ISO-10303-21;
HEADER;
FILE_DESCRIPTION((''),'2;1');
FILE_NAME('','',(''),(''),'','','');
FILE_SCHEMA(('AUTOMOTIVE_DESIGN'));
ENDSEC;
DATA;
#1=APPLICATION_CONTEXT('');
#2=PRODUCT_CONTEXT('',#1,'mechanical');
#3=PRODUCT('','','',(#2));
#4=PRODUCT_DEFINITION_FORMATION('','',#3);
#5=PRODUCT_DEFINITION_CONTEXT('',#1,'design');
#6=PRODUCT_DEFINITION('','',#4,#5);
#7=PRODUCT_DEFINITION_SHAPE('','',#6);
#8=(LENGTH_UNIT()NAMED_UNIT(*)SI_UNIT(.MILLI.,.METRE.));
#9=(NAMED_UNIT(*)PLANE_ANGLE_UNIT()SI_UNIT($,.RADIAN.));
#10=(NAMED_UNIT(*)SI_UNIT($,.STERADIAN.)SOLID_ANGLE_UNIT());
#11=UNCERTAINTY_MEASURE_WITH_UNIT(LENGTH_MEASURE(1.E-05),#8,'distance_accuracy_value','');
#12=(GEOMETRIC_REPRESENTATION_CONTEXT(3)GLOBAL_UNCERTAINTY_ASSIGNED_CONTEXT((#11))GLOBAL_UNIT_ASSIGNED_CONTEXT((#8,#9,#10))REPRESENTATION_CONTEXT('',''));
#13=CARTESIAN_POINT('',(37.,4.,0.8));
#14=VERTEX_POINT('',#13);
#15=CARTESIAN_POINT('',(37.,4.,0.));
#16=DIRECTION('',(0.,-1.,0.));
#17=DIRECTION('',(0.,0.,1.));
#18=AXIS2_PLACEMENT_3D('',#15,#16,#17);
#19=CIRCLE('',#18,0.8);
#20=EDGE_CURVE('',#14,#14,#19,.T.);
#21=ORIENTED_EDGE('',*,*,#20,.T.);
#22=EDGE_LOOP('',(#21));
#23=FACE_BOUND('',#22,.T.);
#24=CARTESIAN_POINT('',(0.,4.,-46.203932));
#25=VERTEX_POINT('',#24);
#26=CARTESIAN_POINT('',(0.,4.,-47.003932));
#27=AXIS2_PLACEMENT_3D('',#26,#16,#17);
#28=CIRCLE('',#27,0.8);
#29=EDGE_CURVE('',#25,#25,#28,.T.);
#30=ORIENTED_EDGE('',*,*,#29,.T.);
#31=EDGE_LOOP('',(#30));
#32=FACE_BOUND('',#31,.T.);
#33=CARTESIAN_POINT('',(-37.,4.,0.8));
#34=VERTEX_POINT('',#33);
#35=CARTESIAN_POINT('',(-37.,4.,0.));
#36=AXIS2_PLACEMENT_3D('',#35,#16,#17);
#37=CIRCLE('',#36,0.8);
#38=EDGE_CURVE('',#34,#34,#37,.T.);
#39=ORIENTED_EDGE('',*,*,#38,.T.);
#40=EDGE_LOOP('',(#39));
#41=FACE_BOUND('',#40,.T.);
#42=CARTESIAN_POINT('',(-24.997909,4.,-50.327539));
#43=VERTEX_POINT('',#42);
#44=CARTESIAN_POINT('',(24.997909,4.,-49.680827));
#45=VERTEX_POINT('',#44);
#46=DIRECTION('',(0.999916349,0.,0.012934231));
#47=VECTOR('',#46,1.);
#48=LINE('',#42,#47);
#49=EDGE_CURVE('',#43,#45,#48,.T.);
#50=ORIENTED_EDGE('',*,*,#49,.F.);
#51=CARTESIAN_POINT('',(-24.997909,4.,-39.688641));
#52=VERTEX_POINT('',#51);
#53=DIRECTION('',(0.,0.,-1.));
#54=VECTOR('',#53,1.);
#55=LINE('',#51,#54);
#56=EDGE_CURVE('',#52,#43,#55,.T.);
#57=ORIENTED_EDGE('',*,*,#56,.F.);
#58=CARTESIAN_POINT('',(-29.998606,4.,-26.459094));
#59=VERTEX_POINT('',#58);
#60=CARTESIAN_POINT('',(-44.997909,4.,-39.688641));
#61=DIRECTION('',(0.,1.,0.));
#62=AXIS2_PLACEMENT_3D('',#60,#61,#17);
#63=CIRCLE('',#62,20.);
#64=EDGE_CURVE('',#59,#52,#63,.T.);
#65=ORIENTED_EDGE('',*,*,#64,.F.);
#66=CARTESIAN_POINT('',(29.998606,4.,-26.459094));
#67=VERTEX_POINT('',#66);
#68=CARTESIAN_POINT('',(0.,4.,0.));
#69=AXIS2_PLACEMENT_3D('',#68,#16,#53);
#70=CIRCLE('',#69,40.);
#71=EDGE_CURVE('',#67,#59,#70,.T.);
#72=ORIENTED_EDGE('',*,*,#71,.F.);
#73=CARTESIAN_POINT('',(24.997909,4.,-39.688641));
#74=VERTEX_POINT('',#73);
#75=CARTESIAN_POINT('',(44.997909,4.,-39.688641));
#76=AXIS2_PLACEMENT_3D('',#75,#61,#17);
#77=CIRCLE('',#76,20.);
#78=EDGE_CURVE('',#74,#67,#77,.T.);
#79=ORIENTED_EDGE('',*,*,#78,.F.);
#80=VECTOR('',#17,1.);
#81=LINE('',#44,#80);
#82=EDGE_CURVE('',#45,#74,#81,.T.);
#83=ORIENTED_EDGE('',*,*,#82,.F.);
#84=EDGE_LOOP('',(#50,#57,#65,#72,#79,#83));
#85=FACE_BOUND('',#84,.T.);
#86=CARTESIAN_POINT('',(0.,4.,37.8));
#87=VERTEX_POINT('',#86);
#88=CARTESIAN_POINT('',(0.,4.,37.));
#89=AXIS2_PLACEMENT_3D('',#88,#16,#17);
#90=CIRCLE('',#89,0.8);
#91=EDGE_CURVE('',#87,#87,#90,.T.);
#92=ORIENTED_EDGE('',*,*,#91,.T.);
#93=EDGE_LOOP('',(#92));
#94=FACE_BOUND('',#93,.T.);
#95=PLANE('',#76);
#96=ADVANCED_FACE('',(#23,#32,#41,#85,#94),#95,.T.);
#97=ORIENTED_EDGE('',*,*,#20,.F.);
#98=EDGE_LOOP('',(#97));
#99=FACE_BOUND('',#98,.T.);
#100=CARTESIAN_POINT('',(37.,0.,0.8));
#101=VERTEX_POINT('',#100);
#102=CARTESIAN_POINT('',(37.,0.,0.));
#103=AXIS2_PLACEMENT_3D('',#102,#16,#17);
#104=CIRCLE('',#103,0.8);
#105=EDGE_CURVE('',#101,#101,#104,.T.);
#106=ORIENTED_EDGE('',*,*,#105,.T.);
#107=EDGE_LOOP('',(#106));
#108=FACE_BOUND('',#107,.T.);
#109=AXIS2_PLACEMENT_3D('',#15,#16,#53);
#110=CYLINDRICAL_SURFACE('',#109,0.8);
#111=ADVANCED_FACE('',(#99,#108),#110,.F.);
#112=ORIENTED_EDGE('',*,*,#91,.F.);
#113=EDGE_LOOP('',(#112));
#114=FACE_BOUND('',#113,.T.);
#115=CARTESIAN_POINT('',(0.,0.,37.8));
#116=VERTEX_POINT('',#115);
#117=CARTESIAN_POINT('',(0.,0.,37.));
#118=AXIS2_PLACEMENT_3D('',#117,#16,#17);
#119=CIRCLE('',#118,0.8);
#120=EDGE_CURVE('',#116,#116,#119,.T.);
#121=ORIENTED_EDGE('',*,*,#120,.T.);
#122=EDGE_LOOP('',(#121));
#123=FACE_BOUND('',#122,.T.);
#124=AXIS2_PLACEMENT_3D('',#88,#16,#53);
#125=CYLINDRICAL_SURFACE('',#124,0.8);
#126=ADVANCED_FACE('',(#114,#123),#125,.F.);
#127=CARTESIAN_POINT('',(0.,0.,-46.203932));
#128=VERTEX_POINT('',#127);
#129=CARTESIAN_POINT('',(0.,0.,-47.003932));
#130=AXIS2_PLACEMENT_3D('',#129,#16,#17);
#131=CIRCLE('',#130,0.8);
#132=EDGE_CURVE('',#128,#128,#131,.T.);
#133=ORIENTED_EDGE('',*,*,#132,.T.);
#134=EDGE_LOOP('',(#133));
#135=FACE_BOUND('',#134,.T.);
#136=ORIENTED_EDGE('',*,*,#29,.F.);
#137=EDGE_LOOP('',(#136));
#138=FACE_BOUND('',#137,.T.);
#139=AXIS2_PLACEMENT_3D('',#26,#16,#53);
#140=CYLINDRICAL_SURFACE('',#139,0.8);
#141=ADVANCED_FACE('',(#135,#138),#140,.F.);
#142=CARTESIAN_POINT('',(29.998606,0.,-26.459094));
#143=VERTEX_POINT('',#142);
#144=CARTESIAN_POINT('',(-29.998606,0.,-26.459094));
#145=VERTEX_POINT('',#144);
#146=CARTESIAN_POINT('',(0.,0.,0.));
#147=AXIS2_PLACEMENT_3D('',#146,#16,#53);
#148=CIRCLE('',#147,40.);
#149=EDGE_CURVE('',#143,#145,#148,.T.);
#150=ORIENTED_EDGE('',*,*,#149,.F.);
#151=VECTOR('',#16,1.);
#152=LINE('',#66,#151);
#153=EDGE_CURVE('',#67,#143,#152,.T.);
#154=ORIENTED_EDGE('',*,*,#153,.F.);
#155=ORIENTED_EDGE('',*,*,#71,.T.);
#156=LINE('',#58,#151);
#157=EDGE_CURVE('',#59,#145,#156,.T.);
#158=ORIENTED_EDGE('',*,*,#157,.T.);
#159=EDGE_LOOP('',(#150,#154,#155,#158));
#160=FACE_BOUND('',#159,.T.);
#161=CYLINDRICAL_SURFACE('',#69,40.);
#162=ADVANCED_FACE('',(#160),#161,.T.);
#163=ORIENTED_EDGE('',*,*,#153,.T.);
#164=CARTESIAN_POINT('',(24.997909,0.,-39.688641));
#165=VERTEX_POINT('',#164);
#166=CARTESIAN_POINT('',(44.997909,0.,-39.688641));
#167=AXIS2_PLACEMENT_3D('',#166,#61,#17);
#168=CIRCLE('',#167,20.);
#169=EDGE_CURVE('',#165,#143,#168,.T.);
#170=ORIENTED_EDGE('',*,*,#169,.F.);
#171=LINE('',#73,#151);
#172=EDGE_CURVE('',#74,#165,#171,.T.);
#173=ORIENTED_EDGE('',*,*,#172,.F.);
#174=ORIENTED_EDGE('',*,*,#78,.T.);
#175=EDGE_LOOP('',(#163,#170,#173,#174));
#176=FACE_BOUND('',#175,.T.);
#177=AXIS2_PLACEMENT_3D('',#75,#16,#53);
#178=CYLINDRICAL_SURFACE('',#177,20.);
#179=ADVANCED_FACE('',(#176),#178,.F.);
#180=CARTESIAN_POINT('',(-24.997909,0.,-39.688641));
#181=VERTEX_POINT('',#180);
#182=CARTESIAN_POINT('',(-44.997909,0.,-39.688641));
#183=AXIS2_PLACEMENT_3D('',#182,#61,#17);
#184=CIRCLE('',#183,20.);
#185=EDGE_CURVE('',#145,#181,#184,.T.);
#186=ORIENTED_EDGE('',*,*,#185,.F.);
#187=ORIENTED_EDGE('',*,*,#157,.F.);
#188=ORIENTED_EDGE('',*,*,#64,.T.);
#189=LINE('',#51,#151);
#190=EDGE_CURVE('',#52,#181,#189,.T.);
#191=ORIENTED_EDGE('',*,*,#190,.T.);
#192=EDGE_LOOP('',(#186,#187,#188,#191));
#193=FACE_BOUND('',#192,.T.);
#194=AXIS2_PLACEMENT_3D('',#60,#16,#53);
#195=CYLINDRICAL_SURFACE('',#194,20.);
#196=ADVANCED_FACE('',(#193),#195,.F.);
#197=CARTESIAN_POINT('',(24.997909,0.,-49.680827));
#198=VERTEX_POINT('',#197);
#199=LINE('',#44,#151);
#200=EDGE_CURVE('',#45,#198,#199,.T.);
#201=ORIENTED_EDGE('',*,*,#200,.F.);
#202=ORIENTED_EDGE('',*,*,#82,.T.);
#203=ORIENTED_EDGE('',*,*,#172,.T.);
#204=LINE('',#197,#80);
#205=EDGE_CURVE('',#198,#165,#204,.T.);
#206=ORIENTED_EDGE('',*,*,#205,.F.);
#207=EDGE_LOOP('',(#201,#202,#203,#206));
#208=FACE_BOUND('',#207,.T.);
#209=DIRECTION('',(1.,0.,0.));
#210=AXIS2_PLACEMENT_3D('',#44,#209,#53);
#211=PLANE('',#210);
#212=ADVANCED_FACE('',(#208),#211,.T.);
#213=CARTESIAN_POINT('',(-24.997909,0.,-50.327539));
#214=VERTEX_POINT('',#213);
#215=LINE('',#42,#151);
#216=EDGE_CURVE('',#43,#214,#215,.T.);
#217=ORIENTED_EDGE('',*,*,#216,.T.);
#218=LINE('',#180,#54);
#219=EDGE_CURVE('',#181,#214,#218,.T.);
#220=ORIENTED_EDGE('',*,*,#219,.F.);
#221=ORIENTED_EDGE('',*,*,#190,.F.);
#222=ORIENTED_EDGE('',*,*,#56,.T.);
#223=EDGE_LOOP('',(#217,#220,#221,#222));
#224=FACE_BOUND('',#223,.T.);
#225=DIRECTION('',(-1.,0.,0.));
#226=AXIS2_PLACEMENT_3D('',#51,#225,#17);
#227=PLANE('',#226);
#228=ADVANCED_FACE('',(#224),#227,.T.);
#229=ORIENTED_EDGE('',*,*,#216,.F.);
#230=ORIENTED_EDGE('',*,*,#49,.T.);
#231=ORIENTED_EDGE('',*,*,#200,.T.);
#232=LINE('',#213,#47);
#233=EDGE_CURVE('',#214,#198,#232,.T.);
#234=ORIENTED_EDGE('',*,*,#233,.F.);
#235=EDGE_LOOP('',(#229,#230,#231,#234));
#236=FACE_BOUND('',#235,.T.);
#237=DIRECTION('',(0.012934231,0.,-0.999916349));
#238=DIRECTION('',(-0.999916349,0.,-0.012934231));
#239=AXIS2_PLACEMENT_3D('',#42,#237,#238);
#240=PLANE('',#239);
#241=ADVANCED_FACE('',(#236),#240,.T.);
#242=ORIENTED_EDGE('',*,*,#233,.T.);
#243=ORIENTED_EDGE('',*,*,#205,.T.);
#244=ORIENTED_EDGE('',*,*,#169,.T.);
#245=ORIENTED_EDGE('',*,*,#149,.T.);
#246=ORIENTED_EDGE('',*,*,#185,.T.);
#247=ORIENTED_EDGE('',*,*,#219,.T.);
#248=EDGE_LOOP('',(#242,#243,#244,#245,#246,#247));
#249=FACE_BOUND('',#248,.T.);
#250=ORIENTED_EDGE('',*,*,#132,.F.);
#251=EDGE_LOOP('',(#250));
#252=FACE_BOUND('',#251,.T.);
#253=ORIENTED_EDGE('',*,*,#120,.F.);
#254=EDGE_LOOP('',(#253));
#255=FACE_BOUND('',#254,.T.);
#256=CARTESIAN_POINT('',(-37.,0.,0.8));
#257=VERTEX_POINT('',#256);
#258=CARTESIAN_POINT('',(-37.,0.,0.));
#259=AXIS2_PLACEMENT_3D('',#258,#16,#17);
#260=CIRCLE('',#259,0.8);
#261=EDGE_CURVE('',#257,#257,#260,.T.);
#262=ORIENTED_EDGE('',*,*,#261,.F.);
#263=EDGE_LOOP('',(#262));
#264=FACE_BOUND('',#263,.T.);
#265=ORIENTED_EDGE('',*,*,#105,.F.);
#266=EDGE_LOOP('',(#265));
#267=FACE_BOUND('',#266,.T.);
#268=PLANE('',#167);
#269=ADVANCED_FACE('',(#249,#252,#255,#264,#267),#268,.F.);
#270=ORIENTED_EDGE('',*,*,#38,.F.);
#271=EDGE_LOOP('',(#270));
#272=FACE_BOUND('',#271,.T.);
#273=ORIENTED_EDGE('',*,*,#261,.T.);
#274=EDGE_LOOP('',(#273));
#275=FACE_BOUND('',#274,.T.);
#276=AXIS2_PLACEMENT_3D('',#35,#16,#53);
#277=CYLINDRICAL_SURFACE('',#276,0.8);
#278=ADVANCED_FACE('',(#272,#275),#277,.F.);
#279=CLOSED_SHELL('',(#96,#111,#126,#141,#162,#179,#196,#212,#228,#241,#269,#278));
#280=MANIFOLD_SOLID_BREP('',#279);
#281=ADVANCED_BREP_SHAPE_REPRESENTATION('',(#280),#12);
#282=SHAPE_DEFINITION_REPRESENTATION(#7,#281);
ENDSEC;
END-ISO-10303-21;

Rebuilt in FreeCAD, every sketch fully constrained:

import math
import FreeCAD as App
import Part
import Sketcher

V = App.Vector

doc = App.newDocument("Part")
params = doc.addObject("Spreadsheet::Sheet", "Params")
for row, (alias, value) in enumerate([
    ("sketch1_radius", "20 mm"),
    ("sketch1_radius2", "40 mm"),
    ("sketch1_diameter", "1.6 mm"),
    ("sketch1_length", "50 mm"),
    ("pad1_length", "4 mm"),
], start=1):
    params.set(f"A{row}", alias)
    params.set(f"B{row}", "=" + value)
    params.setAlias(f"B{row}", alias)

body = doc.addObject("PartDesign::Body", "Body")

sketch1 = doc.addObject("Sketcher::SketchObject", "Sketch")
body.addObject(sketch1)
sketch1.AttachmentSupport = (doc.XZ_Plane, [""])
sketch1.MapMode = "FlatFace"
sketch1.addGeometry([
    Part.LineSegment(V(-25, -39.7, 0), V(-25, -50.3, 0)),
    Part.LineSegment(V(-25, -50.3, 0), V(25, -49.7, 0)),
    Part.LineSegment(V(25, -49.7, 0), V(25, -39.7, 0)),
    Part.ArcOfCircle(Part.Circle(V(45, -39.7, 0), V(0, 0, 1), 20), math.radians(139), math.radians(180)),
    Part.ArcOfCircle(Part.Circle(V(0, 0, 0), V(0, 0, 1), 40), math.radians(-41), math.radians(221)),
    Part.ArcOfCircle(Part.Circle(V(-45, -39.7, 0), V(0, 0, 1), 20), math.radians(0), math.radians(41)),
    Part.Circle(V(0, -47, 0), V(0, 0, 1), 0.8),
    Part.Circle(V(-37, 0, 0), V(0, 0, 1), 0.8),
    Part.Circle(V(37, 0, 0), V(0, 0, 1), 0.8),
    Part.Circle(V(0, 37, 0), V(0, 0, 1), 0.8),
], False)
sketch1.addConstraint([
    Sketcher.Constraint("Coincident", 0, 2, 1, 1),
    Sketcher.Constraint("Coincident", 1, 2, 2, 1),
    Sketcher.Constraint("Tangent", 2, 2, 3, 2),
    Sketcher.Constraint("Tangent", 3, 1, 4, 1),
    Sketcher.Constraint("Tangent", 4, 2, 5, 2),
    Sketcher.Constraint("Tangent", 5, 1, 0, 1),
    Sketcher.Constraint("Vertical", 0),
    Sketcher.Constraint("Vertical", 2),
    Sketcher.Constraint("Coincident", 4, 3, -1, 1),
    Sketcher.Constraint("Equal", 3, 5),
    Sketcher.Constraint("Equal", 6, 7),
    Sketcher.Constraint("Equal", 7, 8),
    Sketcher.Constraint("Equal", 8, 9),
    Sketcher.Constraint("Symmetric", 7, 3, 8, 3, -1, 1),
    Sketcher.Constraint("PointOnObject", 6, 3, -2),
    Sketcher.Constraint("PointOnObject", 7, 3, -1),
    Sketcher.Constraint("PointOnObject", 9, 3, -2),
    Sketcher.Constraint("Horizontal", 3, 3, 5, 3),
    Sketcher.Constraint("Radius", 3, 20.0),
    Sketcher.Constraint("Radius", 4, 40.0),
    Sketcher.Constraint("Diameter", 6, 1.6),
    Sketcher.Constraint("Distance", 1, 50.0),
    Sketcher.Constraint("DistanceX", 7, 3, -1, 1, 37.0),
    Sketcher.Constraint("DistanceY", -1, 1, 9, 3, 37.0),
    Sketcher.Constraint("DistanceY", 0, 2, 0, 1, 10.638898),
    Sketcher.Constraint("DistanceY", 2, 1, 2, 2, 9.992186),
    Sketcher.Constraint("DistanceY", 6, 3, -1, 1, 47.003932),
])
sketch1.setExpression("Constraints[18]", "Params.sketch1_radius")
sketch1.setExpression("Constraints[19]", "Params.sketch1_radius2")
sketch1.setExpression("Constraints[20]", "Params.sketch1_diameter")
sketch1.setExpression("Constraints[21]", "Params.sketch1_length")
pad1 = doc.addObject("PartDesign::Pad", "Pad")
body.addObject(pad1)
pad1.Profile = sketch1
pad1.setExpression("Length", "Params.pad1_length")
pad1.Reversed = True

doc.recompute()
